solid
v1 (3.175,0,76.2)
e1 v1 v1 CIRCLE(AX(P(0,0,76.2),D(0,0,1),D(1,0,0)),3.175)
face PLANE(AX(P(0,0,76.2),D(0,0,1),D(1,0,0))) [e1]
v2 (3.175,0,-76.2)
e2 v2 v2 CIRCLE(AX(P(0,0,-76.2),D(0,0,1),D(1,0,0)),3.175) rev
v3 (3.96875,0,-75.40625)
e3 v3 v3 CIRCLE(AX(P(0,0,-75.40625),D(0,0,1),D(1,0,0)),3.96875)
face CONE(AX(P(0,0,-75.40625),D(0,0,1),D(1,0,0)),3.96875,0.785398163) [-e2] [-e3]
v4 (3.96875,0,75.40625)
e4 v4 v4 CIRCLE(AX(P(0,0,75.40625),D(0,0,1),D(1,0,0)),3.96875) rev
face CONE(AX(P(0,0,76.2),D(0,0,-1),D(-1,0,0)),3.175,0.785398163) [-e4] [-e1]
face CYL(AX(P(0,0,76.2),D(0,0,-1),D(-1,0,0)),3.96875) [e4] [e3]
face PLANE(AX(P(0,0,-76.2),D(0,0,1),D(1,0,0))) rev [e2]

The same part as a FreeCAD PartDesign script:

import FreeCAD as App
import Part
import Sketcher

V = App.Vector
Q = App.Units.Quantity


def edges_at(feature, points):
    """Names of the edges that pass closest to the given points."""
    edges = feature.Shape.Edges
    near = lambda p: min(range(len(edges)), key=lambda i: edges[i].distToShape(Part.Vertex(*p))[0])
    return sorted({f"Edge{near(p) + 1}" for p in points})

doc = App.newDocument("Part")
body = doc.addObject("PartDesign::Body", "Body")

# Sketch on XY plane
sketch1 = body.newObject("Sketcher::SketchObject", "Sketch")
sketch1.AttachmentSupport = (doc.getObject("XY_Plane"), [""])
sketch1.MapMode = "FlatFace"
sketch1.addGeometry(Part.Circle(V(0, 0, 0), V(0, 0, 1), 4), False)
sketch1.addConstraint(Sketcher.Constraint("Coincident", 0, 3, -1, 1))
sketch1.addConstraint(Sketcher.Constraint("Diameter", 0, Q("0.3125 in")))
pad1 = body.newObject("PartDesign::Pad", "Pad")
pad1.Profile = sketch1
pad1.Length = Q("6 in")
pad1.Midplane = True
doc.recompute()

chamfer = body.newObject("PartDesign::Chamfer", "Chamfer")
chamfer.Base = (pad1, edges_at(pad1, [(-3.969, 0, -76.2), (-3.969, 0, 76.2)]))
chamfer.Size = Q("0.03125 in")

doc.recompute()
